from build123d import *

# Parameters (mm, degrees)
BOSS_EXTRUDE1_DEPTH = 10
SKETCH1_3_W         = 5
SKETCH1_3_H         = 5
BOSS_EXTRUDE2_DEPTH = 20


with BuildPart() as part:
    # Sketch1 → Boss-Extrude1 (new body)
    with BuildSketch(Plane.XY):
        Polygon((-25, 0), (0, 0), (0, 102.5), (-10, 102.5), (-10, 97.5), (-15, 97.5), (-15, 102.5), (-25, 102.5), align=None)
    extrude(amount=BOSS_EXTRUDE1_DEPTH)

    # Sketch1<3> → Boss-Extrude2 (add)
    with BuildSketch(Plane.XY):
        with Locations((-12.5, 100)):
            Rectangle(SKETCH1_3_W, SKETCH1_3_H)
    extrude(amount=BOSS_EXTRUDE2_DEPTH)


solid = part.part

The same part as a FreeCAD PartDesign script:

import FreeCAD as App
import Part
import Sketcher
from FreeCAD import Vector
Q = App.Units.Quantity


def add_polygon(sketch, points):
    """Adds a closed chain of lines whose ends are joined by coincident constraints."""
    first, n = sketch.GeometryCount, len(points)
    for a, b in zip(points, points[1:] + points[:1]):
        sketch.addGeometry(Part.LineSegment(App.Vector(*a, 0), App.Vector(*b, 0)), False)
    for i in range(n):
        sketch.addConstraint(Sketcher.Constraint("Coincident", first + i, 2, first + (i + 1) % n, 1))

doc = App.newDocument("Part")
body = doc.addObject("PartDesign::Body", "Body")

sketch1 = body.newObject("Sketcher::SketchObject", "Sketch")
sketch1.AttachmentSupport = (doc.getObject("XY_Plane"), [""])
sketch1.MapMode = "FlatFace"
add_polygon(sketch1, [(-25, 0), (0, 0), (0, 102.5), (-10, 102.5), (-10, 97.5), (-15, 97.5), (-15, 102.5), (-25, 102.5)])
sketch1.addConstraint([
    Sketcher.Constraint("Horizontal", 0),
    Sketcher.Constraint("Vertical", 1),
    Sketcher.Constraint("Horizontal", 2),
    Sketcher.Constraint("Vertical", 3),
    Sketcher.Constraint("Horizontal", 4),
    Sketcher.Constraint("Vertical", 5),
    Sketcher.Constraint("Horizontal", 6),
    Sketcher.Constraint("Vertical", 7),
    Sketcher.Constraint("Coincident", 0, 2, -1, 1),
    Sketcher.Constraint("Horizontal", 2, 2, 5, 2),
    Sketcher.Constraint("Equal", 2, 6),
    Sketcher.Constraint("Equal", 4, 3),
    Sketcher.Constraint("DistanceX", 0, 1, 0, 2, Q("25 mm")),
    Sketcher.Constraint("DistanceX", 2, 2, 2, 1, Q("10 mm")),
    Sketcher.Constraint("DistanceY", 1, 1, 1, 2, Q("102.5 mm")),
])
pad1 = body.newObject("PartDesign::Pad", "Pad")
pad1.Profile = sketch1
pad1.Length = 10

sketch2 = body.newObject("Sketcher::SketchObject", "Sketch001")
sketch2.AttachmentSupport = (doc.getObject("XY_Plane"), [""])
sketch2.MapMode = "FlatFace"
add_polygon(sketch2, [(-15, 102.5), (-15, 97.5), (-10, 97.5), (-10, 102.5)])
sketch2.addConstraint([
    Sketcher.Constraint("Vertical", 0),
    Sketcher.Constraint("Horizontal", 1),
    Sketcher.Constraint("Vertical", 2),
    Sketcher.Constraint("Horizontal", 3),
    Sketcher.Constraint("Equal", 3, 0),
    Sketcher.Constraint("DistanceX", 1, 1, 1, 2, Q("5 mm")),
    Sketcher.Constraint("DistanceX", 0, 2, -1, 1, Q("15 mm")),
    Sketcher.Constraint("DistanceY", -1, 1, 0, 2, Q("97.5 mm")),
])
pad2 = body.newObject("PartDesign::Pad", "Pad001")
pad2.Profile = sketch2
pad2.Length = 20

doc.recompute()
